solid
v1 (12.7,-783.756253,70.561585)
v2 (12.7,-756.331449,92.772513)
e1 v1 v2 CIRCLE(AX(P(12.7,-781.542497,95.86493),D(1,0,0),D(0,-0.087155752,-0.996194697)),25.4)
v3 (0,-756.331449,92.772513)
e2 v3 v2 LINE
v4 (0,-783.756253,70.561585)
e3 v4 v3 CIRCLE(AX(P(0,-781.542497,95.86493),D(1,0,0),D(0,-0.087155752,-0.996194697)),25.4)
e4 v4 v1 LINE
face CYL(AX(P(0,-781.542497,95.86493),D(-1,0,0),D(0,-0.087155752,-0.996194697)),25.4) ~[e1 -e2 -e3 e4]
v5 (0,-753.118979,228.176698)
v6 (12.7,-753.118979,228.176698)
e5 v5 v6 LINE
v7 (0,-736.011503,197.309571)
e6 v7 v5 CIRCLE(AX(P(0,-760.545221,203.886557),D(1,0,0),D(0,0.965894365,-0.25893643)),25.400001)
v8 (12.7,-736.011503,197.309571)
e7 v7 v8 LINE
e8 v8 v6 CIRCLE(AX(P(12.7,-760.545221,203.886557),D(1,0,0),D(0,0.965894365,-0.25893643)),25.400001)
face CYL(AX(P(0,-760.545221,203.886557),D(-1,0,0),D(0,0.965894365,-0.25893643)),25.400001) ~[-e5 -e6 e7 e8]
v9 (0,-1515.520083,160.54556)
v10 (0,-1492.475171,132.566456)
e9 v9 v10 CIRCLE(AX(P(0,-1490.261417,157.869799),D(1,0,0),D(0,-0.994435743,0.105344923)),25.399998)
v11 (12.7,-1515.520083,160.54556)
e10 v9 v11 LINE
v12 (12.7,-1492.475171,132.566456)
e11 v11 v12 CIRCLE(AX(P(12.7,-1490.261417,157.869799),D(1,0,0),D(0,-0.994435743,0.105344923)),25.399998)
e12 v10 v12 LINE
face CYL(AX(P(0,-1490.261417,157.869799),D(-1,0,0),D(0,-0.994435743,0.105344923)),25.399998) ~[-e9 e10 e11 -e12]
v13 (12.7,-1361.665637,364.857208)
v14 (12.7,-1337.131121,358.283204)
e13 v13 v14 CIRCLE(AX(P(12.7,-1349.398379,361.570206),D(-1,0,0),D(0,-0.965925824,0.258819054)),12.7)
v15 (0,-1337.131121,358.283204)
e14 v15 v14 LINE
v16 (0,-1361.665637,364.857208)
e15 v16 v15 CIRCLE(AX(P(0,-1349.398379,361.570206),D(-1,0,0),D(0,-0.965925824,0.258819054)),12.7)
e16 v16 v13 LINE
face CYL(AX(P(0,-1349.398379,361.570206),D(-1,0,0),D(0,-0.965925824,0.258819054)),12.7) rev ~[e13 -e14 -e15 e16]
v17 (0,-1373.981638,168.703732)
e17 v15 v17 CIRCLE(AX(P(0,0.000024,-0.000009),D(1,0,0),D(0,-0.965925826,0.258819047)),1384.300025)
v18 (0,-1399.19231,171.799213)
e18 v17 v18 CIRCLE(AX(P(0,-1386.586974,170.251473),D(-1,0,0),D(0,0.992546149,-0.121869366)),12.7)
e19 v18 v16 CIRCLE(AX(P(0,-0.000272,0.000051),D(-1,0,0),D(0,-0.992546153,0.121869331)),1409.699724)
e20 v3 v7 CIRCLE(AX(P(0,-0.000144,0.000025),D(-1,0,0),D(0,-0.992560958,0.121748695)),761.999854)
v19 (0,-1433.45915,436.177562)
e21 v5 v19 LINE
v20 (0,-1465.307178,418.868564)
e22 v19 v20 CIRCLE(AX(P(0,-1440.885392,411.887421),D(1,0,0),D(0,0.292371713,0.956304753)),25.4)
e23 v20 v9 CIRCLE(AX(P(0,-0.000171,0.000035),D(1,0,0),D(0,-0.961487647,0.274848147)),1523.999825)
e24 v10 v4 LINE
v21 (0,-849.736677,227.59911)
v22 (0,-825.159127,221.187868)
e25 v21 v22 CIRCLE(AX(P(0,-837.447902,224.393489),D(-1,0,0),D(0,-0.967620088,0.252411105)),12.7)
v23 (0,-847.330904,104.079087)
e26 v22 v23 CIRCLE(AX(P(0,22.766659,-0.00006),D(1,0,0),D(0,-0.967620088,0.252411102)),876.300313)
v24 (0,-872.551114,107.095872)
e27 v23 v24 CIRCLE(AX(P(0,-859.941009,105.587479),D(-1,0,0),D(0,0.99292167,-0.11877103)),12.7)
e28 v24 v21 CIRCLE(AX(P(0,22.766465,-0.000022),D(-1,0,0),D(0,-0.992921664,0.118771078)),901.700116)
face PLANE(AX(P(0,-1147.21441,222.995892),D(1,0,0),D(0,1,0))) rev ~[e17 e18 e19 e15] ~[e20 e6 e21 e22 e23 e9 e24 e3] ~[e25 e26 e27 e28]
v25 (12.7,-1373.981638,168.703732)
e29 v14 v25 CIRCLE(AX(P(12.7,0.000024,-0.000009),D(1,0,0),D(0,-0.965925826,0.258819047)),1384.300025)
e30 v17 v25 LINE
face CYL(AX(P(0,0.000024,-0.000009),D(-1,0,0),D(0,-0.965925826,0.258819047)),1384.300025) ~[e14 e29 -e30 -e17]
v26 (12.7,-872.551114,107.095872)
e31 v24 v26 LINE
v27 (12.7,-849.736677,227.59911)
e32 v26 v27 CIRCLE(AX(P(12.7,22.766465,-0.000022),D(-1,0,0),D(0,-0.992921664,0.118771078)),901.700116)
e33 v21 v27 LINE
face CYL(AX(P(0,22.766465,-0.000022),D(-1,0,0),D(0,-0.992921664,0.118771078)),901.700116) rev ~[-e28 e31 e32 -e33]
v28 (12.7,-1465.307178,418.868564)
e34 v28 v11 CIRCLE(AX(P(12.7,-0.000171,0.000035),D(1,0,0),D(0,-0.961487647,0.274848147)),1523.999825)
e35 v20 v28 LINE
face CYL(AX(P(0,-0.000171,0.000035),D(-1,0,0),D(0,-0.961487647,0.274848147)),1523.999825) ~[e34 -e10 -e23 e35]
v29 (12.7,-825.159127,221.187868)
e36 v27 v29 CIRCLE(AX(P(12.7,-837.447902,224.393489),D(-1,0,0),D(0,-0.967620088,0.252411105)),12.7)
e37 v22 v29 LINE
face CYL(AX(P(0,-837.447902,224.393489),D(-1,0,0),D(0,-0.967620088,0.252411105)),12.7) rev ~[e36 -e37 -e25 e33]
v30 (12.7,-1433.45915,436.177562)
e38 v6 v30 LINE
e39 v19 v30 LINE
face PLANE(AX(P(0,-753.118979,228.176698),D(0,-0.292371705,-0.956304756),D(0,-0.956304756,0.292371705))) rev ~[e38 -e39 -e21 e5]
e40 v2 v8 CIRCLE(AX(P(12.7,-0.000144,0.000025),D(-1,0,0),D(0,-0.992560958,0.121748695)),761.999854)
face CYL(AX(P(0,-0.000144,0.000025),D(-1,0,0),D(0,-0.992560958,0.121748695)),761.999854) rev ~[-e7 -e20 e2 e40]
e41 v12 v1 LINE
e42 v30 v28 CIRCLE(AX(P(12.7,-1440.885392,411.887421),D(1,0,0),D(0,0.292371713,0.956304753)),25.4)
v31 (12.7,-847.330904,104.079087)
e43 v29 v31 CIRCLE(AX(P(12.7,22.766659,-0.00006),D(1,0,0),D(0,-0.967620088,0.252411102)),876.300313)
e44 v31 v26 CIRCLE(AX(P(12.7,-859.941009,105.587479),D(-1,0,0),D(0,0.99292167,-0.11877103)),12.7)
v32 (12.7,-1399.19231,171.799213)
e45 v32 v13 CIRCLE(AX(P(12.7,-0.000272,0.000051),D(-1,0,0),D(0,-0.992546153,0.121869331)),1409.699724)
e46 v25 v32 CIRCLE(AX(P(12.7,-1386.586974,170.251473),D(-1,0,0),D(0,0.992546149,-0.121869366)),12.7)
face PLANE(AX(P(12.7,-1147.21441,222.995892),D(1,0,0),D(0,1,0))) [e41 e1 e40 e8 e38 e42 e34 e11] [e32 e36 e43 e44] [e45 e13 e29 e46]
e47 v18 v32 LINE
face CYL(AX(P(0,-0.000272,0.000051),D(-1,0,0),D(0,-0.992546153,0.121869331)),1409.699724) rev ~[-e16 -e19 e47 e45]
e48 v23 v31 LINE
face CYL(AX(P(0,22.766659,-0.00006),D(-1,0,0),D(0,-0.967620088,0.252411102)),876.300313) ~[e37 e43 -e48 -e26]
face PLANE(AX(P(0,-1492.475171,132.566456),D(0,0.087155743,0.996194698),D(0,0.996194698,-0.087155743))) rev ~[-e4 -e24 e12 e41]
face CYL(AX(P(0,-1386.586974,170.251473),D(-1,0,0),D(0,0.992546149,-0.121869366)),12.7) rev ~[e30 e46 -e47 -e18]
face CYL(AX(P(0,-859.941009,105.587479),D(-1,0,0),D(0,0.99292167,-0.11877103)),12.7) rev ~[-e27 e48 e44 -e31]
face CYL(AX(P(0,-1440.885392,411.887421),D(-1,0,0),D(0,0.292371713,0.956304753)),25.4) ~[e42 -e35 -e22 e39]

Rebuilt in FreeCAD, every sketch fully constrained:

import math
import FreeCAD as App
import Part
import Sketcher
Q = App.Units.Quantity

doc = App.newDocument("Part")
body = doc.addObject("PartDesign::Body", "Body")

sketch1 = doc.addObject("Sketcher::SketchObject", "Sketch")
body.addObject(sketch1)
sketch1.AttachmentSupport = (doc.YZ_Plane, [""])
sketch1.MapMode = "FlatFace"
sketch1.addGeometry(Part.ArcOfCircle(Part.Circle(App.Vector(-0.000144, 0.000025, 0), App.Vector(0, 0, 1), 761.999854), math.radians(164.993035), math.radians(173.006965)), False)
sketch1.addGeometry(Part.ArcOfCircle(Part.Circle(App.Vector(-760.545221, 203.886557, 0), App.Vector(0, 0, 1), 25.400001), math.radians(-15.006963), math.radians(73)), False)
sketch1.addGeometry(Part.LineSegment(App.Vector(-753.118979, 228.176698, 0), App.Vector(-1433.45915, 436.177562, 0)), False)
sketch1.addGeometry(Part.ArcOfCircle(Part.Circle(App.Vector(-1440.885392, 411.887421, 0), App.Vector(0, 0, 1), 25.4), math.radians(73), math.radians(164.047035)), False)
sketch1.addGeometry(Part.ArcOfCircle(Part.Circle(App.Vector(-0.000171, 0.000035, 0), App.Vector(0, 0, 1), 1523.999825), math.radians(164.047035), math.radians(173.952965)), False)
sketch1.addGeometry(Part.ArcOfCircle(Part.Circle(App.Vector(-1490.261417, 157.869799, 0), App.Vector(0, 0, 1), 25.399998), math.radians(173.952961), math.radians(265.000005)), False)
sketch1.addGeometry(Part.LineSegment(App.Vector(-1492.475171, 132.566456, 0), App.Vector(-783.756253, 70.561585, 0)), False)
sketch1.addGeometry(Part.ArcOfCircle(Part.Circle(App.Vector(-781.542497, 95.86493, 0), App.Vector(0, 0, 1), 25.4), math.radians(-95.000001), math.radians(-6.993036)), False)
sketch1.addGeometry(Part.ArcOfCircle(Part.Circle(App.Vector(-859.941009, 105.587479, 0), App.Vector(0, 0, 1), 12.7), math.radians(173.178815), math.radians(353.178819)), False)
sketch1.addGeometry(Part.ArcOfCircle(Part.Circle(App.Vector(22.766465, -0.000022, 0), App.Vector(0, 0, 1), 901.700116), math.radians(165.379764), math.radians(173.178817)), False)
sketch1.addGeometry(Part.ArcOfCircle(Part.Circle(App.Vector(-837.447902, 224.393489, 0), App.Vector(0, 0, 1), 12.7), math.radians(-14.620235), math.radians(165.379765)), False)
sketch1.addGeometry(Part.ArcOfCircle(Part.Circle(App.Vector(22.766659, -0.00006, 0), App.Vector(0, 0, 1), 876.300313), math.radians(165.379765), math.radians(173.178816)), False)
sketch1.addGeometry(Part.ArcOfCircle(Part.Circle(App.Vector(-1386.586974, 170.251473, 0), App.Vector(0, 0, 1), 12.7), math.radians(173.000003), math.radians(352.999999)), False)
sketch1.addGeometry(Part.ArcOfCircle(Part.Circle(App.Vector(-0.000272, 0.000051, 0), App.Vector(0, 0, 1), 1409.699724), math.radians(164.999999), math.radians(173.000001)), False)
sketch1.addGeometry(Part.ArcOfCircle(Part.Circle(App.Vector(-1349.398379, 361.570206, 0), App.Vector(0, 0, 1), 12.7), math.radians(-15.000001), math.radians(164.999999)), False)
sketch1.addGeometry(Part.ArcOfCircle(Part.Circle(App.Vector(0.000024, -0.000009, 0), App.Vector(0, 0, 1), 1384.300025), math.radians(165), math.radians(173)), False)
sketch1.addConstraint(Sketcher.Constraint("Coincident", 0, 1, 1, 1))
sketch1.addConstraint(Sketcher.Constraint("Coincident", 1, 2, 2, 1))
sketch1.addConstraint(Sketcher.Constraint("Coincident", 2, 2, 3, 1))
sketch1.addConstraint(Sketcher.Constraint("Coincident", 3, 2, 4, 1))
sketch1.addConstraint(Sketcher.Constraint("Coincident", 4, 2, 5, 1))
sketch1.addConstraint(Sketcher.Constraint("Coincident", 5, 2, 6, 1))
sketch1.addConstraint(Sketcher.Constraint("Coincident", 6, 2, 7, 1))
sketch1.addConstraint(Sketcher.Constraint("Coincident", 7, 2, 0, 2))
sketch1.addConstraint(Sketcher.Constraint("Coincident", 8, 1, 9, 2))
sketch1.addConstraint(Sketcher.Constraint("Coincident", 9, 1, 10, 2))
sketch1.addConstraint(Sketcher.Constraint("Coincident", 10, 1, 11, 1))
sketch1.addConstraint(Sketcher.Constraint("Coincident", 11, 2, 8, 2))
sketch1.addConstraint(Sketcher.Constraint("Coincident", 12, 1, 13, 2))
sketch1.addConstraint(Sketcher.Constraint("Coincident", 13, 1, 14, 2))
sketch1.addConstraint(Sketcher.Constraint("Coincident", 14, 1, 15, 1))
sketch1.addConstraint(Sketcher.Constraint("Coincident", 15, 2, 12, 2))
sketch1.addConstraint(Sketcher.Constraint("Radius", 1, Q("1 in")))
sketch1.addConstraint(Sketcher.Constraint("Radius", 3, Q("1 in")))
sketch1.addConstraint(Sketcher.Constraint("Radius", 5, Q("0.9999999 in")))
sketch1.addConstraint(Sketcher.Constraint("Radius", 7, Q("1 in")))
sketch1.addConstraint(Sketcher.Constraint("Radius", 8, Q("0.5 in")))
sketch1.addConstraint(Sketcher.Constraint("Radius", 10, Q("0.5 in")))
sketch1.addConstraint(Sketcher.Constraint("Radius", 12, Q("0.5 in")))
sketch1.addConstraint(Sketcher.Constraint("Radius", 14, Q("0.5 in")))
sketch1.addConstraint(Sketcher.Constraint("DistanceX", 10, 3, 7, 3, Q("2.2010002 in")))
sketch1.addConstraint(Sketcher.Constraint("DistanceX", 9, 1, -1, 1, Q("33.4541999 in")))
sketch1.addConstraint(Sketcher.Constraint("Radius", 0, 761.999854))
sketch1.addConstraint(Sketcher.Constraint("Radius", 4, 1523.999825))
sketch1.addConstraint(Sketcher.Constraint("Radius", 9, 901.700116))
sketch1.addConstraint(Sketcher.Constraint("Radius", 11, 876.300313))
sketch1.addConstraint(Sketcher.Constraint("Radius", 13, 1409.699724))
sketch1.addConstraint(Sketcher.Constraint("Radius", 15, 1384.300025))
sketch1.addConstraint(Sketcher.Constraint("DistanceX", 8, 3, 6, 2, Q("2.9993998 in")))
sketch1.addConstraint(Sketcher.Constraint("DistanceY", -1, 1, 5, 3, 157.869799))
sketch1.addConstraint(Sketcher.Constraint("DistanceX", 10, 3, -1, 1, 837.447902))
sketch1.addConstraint(Sketcher.Constraint("DistanceY", -1, 1, 1, 2, 228.176698))
sketch1.addConstraint(Sketcher.Constraint("DistanceY", 9, 3, 8, 3, 105.587502))
sketch1.addConstraint(Sketcher.Constraint("DistanceX", 13, 3, 4, 3, 0.000101))
sketch1.addConstraint(Sketcher.Constraint("DistanceX", 10, 3, 0, 1, 101.436399))
sketch1.addConstraint(Sketcher.Constraint("DistanceY", 3, 2, 2, 2, 17.308998))
sketch1.addConstraint(Sketcher.Constraint("DistanceX", 3, 2, 14, 3, 115.908799))
sketch1.addConstraint(Sketcher.Constraint("DistanceY", 6, 2, 11, 2, 33.517502))
sketch1.addConstraint(Sketcher.Constraint("DistanceY", 14, 3, 13, 1, 3.287002))
sketch1.addConstraint(Sketcher.Constraint("Distance", 2, 711.426108))
sketch1.addConstraint(Sketcher.Constraint("Distance", 6, 711.426109))
sketch1.addConstraint(Sketcher.Constraint("DistanceX", 1, 3, -1, 1, 760.545221))
sketch1.addConstraint(Sketcher.Constraint("DistanceX", 3, 3, -1, 1, 1440.885392))
sketch1.addConstraint(Sketcher.Constraint("DistanceY", -1, 1, 3, 3, 411.887421))
sketch1.addConstraint(Sketcher.Constraint("DistanceX", 4, 3, -1, 1, 0.000171))
sketch1.addConstraint(Sketcher.Constraint("DistanceY", -1, 1, 7, 3, 95.86493))
sketch1.addConstraint(Sketcher.Constraint("DistanceX", 8, 3, -1, 1, 859.941009))
sketch1.addConstraint(Sketcher.Constraint("DistanceY", -1, 1, 8, 3, 105.587479))
sketch1.addConstraint(Sketcher.Constraint("DistanceX", 14, 3, -1, 1, 1349.398379))
sketch1.addConstraint(Sketcher.Constraint("DistanceY", -1, 1, 4, 2, 160.54556))
sketch1.addConstraint(Sketcher.Constraint("DistanceX", 7, 2, -1, 1, 756.331449))
sketch1.addConstraint(Sketcher.Constraint("DistanceY", -1, 1, 8, 1, 107.095872))
sketch1.addConstraint(Sketcher.Constraint("DistanceX", 12, 1, -1, 1, 1399.19231))
sketch1.addConstraint(Sketcher.Constraint("DistanceX", 14, 1, -1, 1, 1337.131121))
sketch1.addConstraint(Sketcher.Constraint("DistanceY", -1, 1, 15, 2, 168.703732))
sketch1.addConstraint(Sketcher.Constraint("DistanceY", 12, 3, 3, 3, 241.635948))
sketch1.addConstraint(Sketcher.Constraint("DistanceX", 12, 3, 10, 3, 549.139072))
sketch1.addConstraint(Sketcher.Constraint("DistanceY", 10, 1, 10, 3, 3.205621))
pad1 = doc.addObject("PartDesign::Pad", "Pad")
body.addObject(pad1)
pad1.Profile = sketch1
pad1.Length = Q("0.5 in")

doc.recompute()
